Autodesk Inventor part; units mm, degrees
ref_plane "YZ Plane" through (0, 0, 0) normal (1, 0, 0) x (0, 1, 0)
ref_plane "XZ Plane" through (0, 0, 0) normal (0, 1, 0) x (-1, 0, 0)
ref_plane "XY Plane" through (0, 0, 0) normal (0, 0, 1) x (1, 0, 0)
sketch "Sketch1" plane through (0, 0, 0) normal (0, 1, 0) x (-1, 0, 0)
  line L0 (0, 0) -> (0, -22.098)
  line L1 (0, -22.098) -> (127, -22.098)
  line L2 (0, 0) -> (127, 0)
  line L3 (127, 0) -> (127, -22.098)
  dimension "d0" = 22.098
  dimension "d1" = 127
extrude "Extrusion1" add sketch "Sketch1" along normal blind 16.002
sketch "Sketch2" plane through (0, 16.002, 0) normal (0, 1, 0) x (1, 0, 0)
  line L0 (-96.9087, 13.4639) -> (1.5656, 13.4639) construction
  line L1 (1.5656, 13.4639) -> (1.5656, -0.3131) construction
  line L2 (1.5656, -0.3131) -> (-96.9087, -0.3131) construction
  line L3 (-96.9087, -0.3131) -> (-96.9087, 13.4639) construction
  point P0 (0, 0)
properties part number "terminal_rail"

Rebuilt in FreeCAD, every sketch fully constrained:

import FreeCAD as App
import Part
import Sketcher
from FreeCAD import Vector
Q = App.Units.Quantity

doc = App.newDocument("Part")
body = doc.addObject("PartDesign::Body", "Body")

sketch1 = doc.addObject("Sketcher::SketchObject", "Sketch")
body.addObject(sketch1)
sketch1.AttachmentSupport = (doc.XZ_Plane, [""])
sketch1.MapMode = "FlatFace"
sketch1.addGeometry([
    Part.LineSegment(Vector(-127, 0, 0), Vector(0, 0, 0)),
    Part.LineSegment(Vector(0, 0, 0), Vector(0, -22, 0)),
    Part.LineSegment(Vector(0, -22, 0), Vector(-127, -22, 0)),
    Part.LineSegment(Vector(-127, -22, 0), Vector(-127, 0, 0)),
], False)
sketch1.addConstraint([
    Sketcher.Constraint("Coincident", 0, 2, 1, 1),
    Sketcher.Constraint("Coincident", 1, 2, 2, 1),
    Sketcher.Constraint("Coincident", 2, 2, 3, 1),
    Sketcher.Constraint("Coincident", 3, 2, 0, 1),
    Sketcher.Constraint("Horizontal", 0),
    Sketcher.Constraint("Vertical", 1),
    Sketcher.Constraint("Horizontal", 2),
    Sketcher.Constraint("Vertical", 3),
    Sketcher.Constraint("Coincident", 0, 2, -1, 1),
    Sketcher.Constraint("DistanceX", 0, 1, 0, 2, Q("5 in")),
    Sketcher.Constraint("DistanceY", 1, 2, 1, 1, Q("0.87 in")),
])
pad1 = doc.addObject("PartDesign::Pad", "Pad")
body.addObject(pad1)
pad1.Profile = sketch1
pad1.Length = Q("0.63 in")
pad1.Reversed = True

doc.recompute()
